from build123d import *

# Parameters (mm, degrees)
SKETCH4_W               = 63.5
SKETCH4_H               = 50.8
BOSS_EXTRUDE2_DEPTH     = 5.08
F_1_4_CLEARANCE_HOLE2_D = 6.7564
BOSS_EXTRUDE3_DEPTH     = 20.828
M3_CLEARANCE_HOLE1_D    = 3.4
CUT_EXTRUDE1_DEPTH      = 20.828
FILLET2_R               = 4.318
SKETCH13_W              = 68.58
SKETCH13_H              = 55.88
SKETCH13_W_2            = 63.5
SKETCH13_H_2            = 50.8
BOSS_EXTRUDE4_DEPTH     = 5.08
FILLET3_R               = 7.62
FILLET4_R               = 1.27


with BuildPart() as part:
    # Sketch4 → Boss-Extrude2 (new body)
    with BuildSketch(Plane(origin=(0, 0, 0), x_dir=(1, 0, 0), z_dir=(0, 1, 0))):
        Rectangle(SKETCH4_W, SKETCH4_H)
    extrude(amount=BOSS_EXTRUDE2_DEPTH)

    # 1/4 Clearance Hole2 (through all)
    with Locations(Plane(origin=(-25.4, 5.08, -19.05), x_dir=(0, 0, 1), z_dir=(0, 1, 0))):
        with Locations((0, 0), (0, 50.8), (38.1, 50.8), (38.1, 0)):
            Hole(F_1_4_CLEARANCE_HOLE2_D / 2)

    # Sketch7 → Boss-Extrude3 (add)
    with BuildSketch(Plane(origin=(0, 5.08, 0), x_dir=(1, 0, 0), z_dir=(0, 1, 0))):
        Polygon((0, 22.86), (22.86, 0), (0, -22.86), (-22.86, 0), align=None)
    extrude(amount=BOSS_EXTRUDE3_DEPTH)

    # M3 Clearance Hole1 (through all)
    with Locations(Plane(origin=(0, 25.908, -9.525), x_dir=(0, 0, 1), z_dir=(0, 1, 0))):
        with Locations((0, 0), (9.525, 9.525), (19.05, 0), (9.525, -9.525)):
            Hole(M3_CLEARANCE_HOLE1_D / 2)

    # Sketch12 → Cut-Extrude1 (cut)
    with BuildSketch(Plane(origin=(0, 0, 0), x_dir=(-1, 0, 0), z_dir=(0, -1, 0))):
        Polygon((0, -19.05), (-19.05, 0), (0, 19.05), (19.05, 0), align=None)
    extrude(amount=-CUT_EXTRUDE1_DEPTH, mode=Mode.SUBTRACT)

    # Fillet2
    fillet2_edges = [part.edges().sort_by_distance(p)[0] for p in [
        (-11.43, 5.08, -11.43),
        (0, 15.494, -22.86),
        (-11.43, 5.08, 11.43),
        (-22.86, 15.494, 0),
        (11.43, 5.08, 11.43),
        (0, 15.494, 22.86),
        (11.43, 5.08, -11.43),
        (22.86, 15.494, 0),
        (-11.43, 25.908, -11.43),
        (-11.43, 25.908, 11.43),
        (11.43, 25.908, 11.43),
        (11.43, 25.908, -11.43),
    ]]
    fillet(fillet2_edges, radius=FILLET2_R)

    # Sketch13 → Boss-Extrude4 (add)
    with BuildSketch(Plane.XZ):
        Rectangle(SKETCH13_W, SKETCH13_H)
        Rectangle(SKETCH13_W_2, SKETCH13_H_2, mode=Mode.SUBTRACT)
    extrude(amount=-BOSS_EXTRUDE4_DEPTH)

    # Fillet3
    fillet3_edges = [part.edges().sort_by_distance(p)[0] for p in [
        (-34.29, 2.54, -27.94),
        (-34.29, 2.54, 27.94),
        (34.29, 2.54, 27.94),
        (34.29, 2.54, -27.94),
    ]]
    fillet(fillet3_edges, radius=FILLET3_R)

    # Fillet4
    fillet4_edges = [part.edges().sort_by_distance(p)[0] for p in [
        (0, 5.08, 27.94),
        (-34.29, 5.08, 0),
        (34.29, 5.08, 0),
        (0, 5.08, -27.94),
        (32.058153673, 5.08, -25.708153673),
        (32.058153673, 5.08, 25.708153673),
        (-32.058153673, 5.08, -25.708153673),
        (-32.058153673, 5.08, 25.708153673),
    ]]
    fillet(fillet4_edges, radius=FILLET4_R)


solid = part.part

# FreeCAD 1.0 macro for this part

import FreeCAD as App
import Part
import Sketcher

V = App.Vector
Q = App.Units.Quantity


def edges_at(feature, points):
    """Names of the edges that pass closest to the given points."""
    edges = feature.Shape.Edges
    near = lambda p: min(range(len(edges)), key=lambda i: edges[i].distToShape(Part.Vertex(*p))[0])
    return sorted({f"Edge{near(p) + 1}" for p in points})

doc = App.newDocument("Part")
body = doc.addObject("PartDesign::Body", "Body")

# Sketch on XZ plane
sketch1 = doc.addObject("Sketcher::SketchObject", "Sketch")
body.addObject(sketch1)
sketch1.AttachmentSupport = (doc.XZ_Plane, [""])
sketch1.MapMode = "FlatFace"
sketch1.addGeometry([
    Part.LineSegment(V(-32, -25, 0), V(-32, 25, 0)),
    Part.LineSegment(V(-32, 25, 0), V(32, 25, 0)),
    Part.LineSegment(V(32, 25, 0), V(32, -25, 0)),
    Part.LineSegment(V(32, -25, 0), V(-32, -25, 0)),
], False)
sketch1.addConstraint([
    Sketcher.Constraint("Coincident", 0, 2, 1, 1),
    Sketcher.Constraint("Coincident", 1, 2, 2, 1),
    Sketcher.Constraint("Coincident", 2, 2, 3, 1),
    Sketcher.Constraint("Coincident", 3, 2, 0, 1),
    Sketcher.Constraint("Vertical", 0),
    Sketcher.Constraint("Horizontal", 1),
    Sketcher.Constraint("Vertical", 2),
    Sketcher.Constraint("Horizontal", 3),
    Sketcher.Constraint("Symmetric", 0, 2, 2, 2, -1, 1),
    Sketcher.Constraint("DistanceY", 0, 1, 0, 2, Q("2 in")),
    Sketcher.Constraint("DistanceX", 1, 1, 1, 2, Q("2.5 in")),
])
pad1 = doc.addObject("PartDesign::Pad", "Pad")
body.addObject(pad1)
pad1.Profile = sketch1
pad1.Length = Q("0.2 in")
pad1.Reversed = True

# Sketch on XZ plane
sketch2 = doc.addObject("Sketcher::SketchObject", "Sketch001")
body.addObject(sketch2)
sketch2.AttachmentSupport = (doc.XZ_Plane, [""])
sketch2.MapMode = "FlatFace"
sketch2.AttachmentOffset = App.Placement(V(0, 0, -0.2 * 25.4), App.Rotation())
sketch2.addGeometry([
    Part.Circle(V(-25.4, -19.1, 0), V(0, 0, 1), 3.4),
    Part.Circle(V(25.4, -19.1, 0), V(0, 0, 1), 3.4),
    Part.Circle(V(25.4, 19.1, 0), V(0, 0, 1), 3.4),
    Part.Circle(V(-25.4, 19.1, 0), V(0, 0, 1), 3.4),
], False)
sketch2.addConstraint([
    Sketcher.Constraint("Equal", 0, 1),
    Sketcher.Constraint("Equal", 1, 2),
    Sketcher.Constraint("Equal", 2, 3),
    Sketcher.Constraint("Symmetric", 0, 3, 2, 3, -1, 1),
    Sketcher.Constraint("Symmetric", 1, 3, 3, 3, -1, 1),
    Sketcher.Constraint("Symmetric", 0, 3, 1, 3, -2),
    Sketcher.Constraint("Diameter", 0, Q("0.266 in")),
    Sketcher.Constraint("DistanceX", 0, 3, -1, 1, Q("1 in")),
    Sketcher.Constraint("DistanceY", 1, 3, 2, 3, Q("1.5 in")),
])
doc.recompute()
hole = doc.addObject("PartDesign::Hole", "Hole")
body.addObject(hole)
hole.Profile = sketch2
hole.ThreadType = "None"
hole.Diameter = Q("0.266 in")
hole.DepthType = "ThroughAll"
hole.Reversed = True

# Sketch on XZ plane
sketch3 = doc.addObject("Sketcher::SketchObject", "Sketch002")
body.addObject(sketch3)
sketch3.AttachmentSupport = (doc.XZ_Plane, [""])
sketch3.MapMode = "FlatFace"
sketch3.AttachmentOffset = App.Placement(V(0, 0, -0.2 * 25.4), App.Rotation())
sketch3.addGeometry([
    Part.LineSegment(V(23, 0, 0), V(0, -23, 0)),
    Part.LineSegment(V(0, -23, 0), V(-23, 0, 0)),
    Part.LineSegment(V(-23, 0, 0), V(0, 23, 0)),
    Part.LineSegment(V(0, 23, 0), V(23, 0, 0)),
], False)
sketch3.addConstraint([
    Sketcher.Constraint("Coincident", 0, 2, 1, 1),
    Sketcher.Constraint("Coincident", 1, 2, 2, 1),
    Sketcher.Constraint("Coincident", 2, 2, 3, 1),
    Sketcher.Constraint("Coincident", 3, 2, 0, 1),
    Sketcher.Constraint("Symmetric", 0, 2, 2, 2, -1, 1),
    Sketcher.Constraint("Symmetric", 1, 2, 3, 2, -1, 1),
    Sketcher.Constraint("PointOnObject", 0, 2, -2),
    Sketcher.Constraint("PointOnObject", 1, 2, -1),
    Sketcher.Constraint("Perpendicular", 0, 1),
    Sketcher.Constraint("DistanceY", 0, 2, -1, 1, Q("0.9 in")),
])
pad2 = doc.addObject("PartDesign::Pad", "Pad001")
body.addObject(pad2)
pad2.Profile = sketch3
pad2.Length = Q("0.82 in")
pad2.Reversed = True

# Sketch on XZ plane
sketch4 = doc.addObject("Sketcher::SketchObject", "Sketch003")
body.addObject(sketch4)
sketch4.AttachmentSupport = (doc.XZ_Plane, [""])
sketch4.MapMode = "FlatFace"
sketch4.AttachmentOffset = App.Placement(V(0, 0, -1.02 * 25.4), App.Rotation())
sketch4.addGeometry([
    Part.Circle(V(0, -9.5, 0), V(0, 0, 1), 1.7),
    Part.Circle(V(9.5, 0, 0), V(0, 0, 1), 1.7),
    Part.Circle(V(0, 9.5, 0), V(0, 0, 1), 1.7),
    Part.Circle(V(-9.5, 0, 0), V(0, 0, 1), 1.7),
], False)
sketch4.addConstraint([
    Sketcher.Constraint("Equal", 0, 1),
    Sketcher.Constraint("Equal", 1, 2),
    Sketcher.Constraint("Equal", 2, 3),
    Sketcher.Constraint("Symmetric", 0, 3, 2, 3, -1, 1),
    Sketcher.Constraint("Symmetric", 1, 3, 3, 3, -1, 1),
    Sketcher.Constraint("PointOnObject", 0, 3, -2),
    Sketcher.Constraint("PointOnObject", 1, 3, -1),
    Sketcher.Constraint("Diameter", 0, 3.4),
    Sketcher.Constraint("DistanceY", 0, 3, 2, 3, Q("0.75 in")),
    Sketcher.Constraint("DistanceX", 3, 3, 1, 3, Q("0.75 in")),
])
doc.recompute()
hole2 = doc.addObject("PartDesign::Hole", "Hole001")
body.addObject(hole2)
hole2.Profile = sketch4
hole2.ThreadType = "None"
hole2.Diameter = 3.4
hole2.DepthType = "ThroughAll"
hole2.Reversed = True

# Sketch on XZ plane
sketch5 = doc.addObject("Sketcher::SketchObject", "Sketch004")
body.addObject(sketch5)
sketch5.AttachmentSupport = (doc.XZ_Plane, [""])
sketch5.MapMode = "FlatFace"
sketch5.addGeometry([
    Part.LineSegment(V(19, 0, 0), V(0, 19, 0)),
    Part.LineSegment(V(0, 19, 0), V(-19, 0, 0)),
    Part.LineSegment(V(-19, 0, 0), V(0, -19, 0)),
    Part.LineSegment(V(0, -19, 0), V(19, 0, 0)),
], False)
sketch5.addConstraint([
    Sketcher.Constraint("Coincident", 0, 2, 1, 1),
    Sketcher.Constraint("Coincident", 1, 2, 2, 1),
    Sketcher.Constraint("Coincident", 2, 2, 3, 1),
    Sketcher.Constraint("Coincident", 3, 2, 0, 1),
    Sketcher.Constraint("Symmetric", 0, 2, 2, 2, -1, 1),
    Sketcher.Constraint("Symmetric", 1, 2, 3, 2, -1, 1),
    Sketcher.Constraint("PointOnObject", 0, 2, -2),
    Sketcher.Constraint("PointOnObject", 1, 2, -1),
    Sketcher.Constraint("Perpendicular", 0, 1),
    Sketcher.Constraint("DistanceY", 2, 2, 0, 2, Q("1.5 in")),
])
pocket1 = doc.addObject("PartDesign::Pocket", "Pocket")
body.addObject(pocket1)
pocket1.Profile = sketch5
pocket1.Length = Q("0.82 in")
doc.recompute()

fillet = doc.addObject("PartDesign::Fillet", "Fillet")
body.addObject(fillet)
fillet.Base = (pocket1, edges_at(pocket1, [
    (-11.43, 5.08, -11.43),
    (0, 15.494, -22.86),
    (-11.43, 5.08, 11.43),
    (-22.86, 15.494, 0),
    (11.43, 5.08, 11.43),
    (0, 15.494, 22.86),
    (11.43, 5.08, -11.43),
    (22.86, 15.494, 0),
    (-11.43, 25.908, -11.43),
    (-11.43, 25.908, 11.43),
    (11.43, 25.908, 11.43),
    (11.43, 25.908, -11.43),
]))
fillet.Radius = Q("0.17 in")

# Sketch on XZ plane
sketch6 = doc.addObject("Sketcher::SketchObject", "Sketch005")
body.addObject(sketch6)
sketch6.AttachmentSupport = (doc.XZ_Plane, [""])
sketch6.MapMode = "FlatFace"
sketch6.addGeometry([
    Part.LineSegment(V(-34, 28, 0), V(-34, -28, 0)),  # 0
    Part.LineSegment(V(-34, -28, 0), V(34, -28, 0)),  # 1
    Part.LineSegment(V(34, -28, 0), V(34, 28, 0)),  # 2
    Part.LineSegment(V(34, 28, 0), V(-34, 28, 0)),  # 3
    Part.LineSegment(V(32, -25, 0), V(-32, -25, 0)),  # 4
    Part.LineSegment(V(-32, -25, 0), V(-32, 25, 0)),  # 5
    Part.LineSegment(V(-32, 25, 0), V(32, 25, 0)),  # 6
    Part.LineSegment(V(32, 25, 0), V(32, -25, 0)),  # 7
], False)
sketch6.addConstraint([
    Sketcher.Constraint("Coincident", 0, 2, 1, 1),
    Sketcher.Constraint("Coincident", 1, 2, 2, 1),
    Sketcher.Constraint("Coincident", 2, 2, 3, 1),
    Sketcher.Constraint("Coincident", 3, 2, 0, 1),
    Sketcher.Constraint("Coincident", 4, 2, 5, 1),
    Sketcher.Constraint("Coincident", 5, 2, 6, 1),
    Sketcher.Constraint("Coincident", 6, 2, 7, 1),
    Sketcher.Constraint("Coincident", 7, 2, 4, 1),
    Sketcher.Constraint("Vertical", 0),
    Sketcher.Constraint("Horizontal", 1),
    Sketcher.Constraint("Vertical", 2),
    Sketcher.Constraint("Horizontal", 3),
    Sketcher.Constraint("Horizontal", 4),
    Sketcher.Constraint("Vertical", 5),
    Sketcher.Constraint("Horizontal", 6),
    Sketcher.Constraint("Vertical", 7),
    Sketcher.Constraint("Symmetric", 0, 2, 2, 2, -1, 1),
    Sketcher.Constraint("Symmetric", 4, 2, 6, 2, -1, 1),
    Sketcher.Constraint("DistanceY", 5, 1, 5, 2, Q("2 in")),
    Sketcher.Constraint("DistanceX", 1, 1, 1, 2, Q("2.7 in")),
    Sketcher.Constraint("DistanceX", 4, 2, 4, 1, Q("2.5 in")),
    Sketcher.Constraint("DistanceY", 0, 2, 0, 1, Q("2.2 in")),
])
pad3 = doc.addObject("PartDesign::Pad", "Pad002")
body.addObject(pad3)
pad3.Profile = sketch6
pad3.Length = Q("0.2 in")
pad3.Reversed = True
doc.recompute()

fillet2 = doc.addObject("PartDesign::Fillet", "Fillet001")
body.addObject(fillet2)
fillet2.Base = (pad3, edges_at(pad3, [
    (-34.29, 2.54, -27.94),
    (-34.29, 2.54, 27.94),
    (34.29, 2.54, 27.94),
    (34.29, 2.54, -27.94),
]))
fillet2.Radius = Q("0.3 in")
doc.recompute()

fillet3 = doc.addObject("PartDesign::Fillet", "Fillet002")
body.addObject(fillet3)
fillet3.Base = (fillet2, edges_at(fillet2, [
    (0, 5.08, 27.94),
    (-34.29, 5.08, 0),
    (34.29, 5.08, 0),
    (0, 5.08, -27.94),
    (32.058, 5.08, -25.708),
    (32.058, 5.08, 25.708),
    (-32.058, 5.08, -25.708),
    (-32.058, 5.08, 25.708),
]))
fillet3.Radius = Q("0.05 in")

doc.recompute()
